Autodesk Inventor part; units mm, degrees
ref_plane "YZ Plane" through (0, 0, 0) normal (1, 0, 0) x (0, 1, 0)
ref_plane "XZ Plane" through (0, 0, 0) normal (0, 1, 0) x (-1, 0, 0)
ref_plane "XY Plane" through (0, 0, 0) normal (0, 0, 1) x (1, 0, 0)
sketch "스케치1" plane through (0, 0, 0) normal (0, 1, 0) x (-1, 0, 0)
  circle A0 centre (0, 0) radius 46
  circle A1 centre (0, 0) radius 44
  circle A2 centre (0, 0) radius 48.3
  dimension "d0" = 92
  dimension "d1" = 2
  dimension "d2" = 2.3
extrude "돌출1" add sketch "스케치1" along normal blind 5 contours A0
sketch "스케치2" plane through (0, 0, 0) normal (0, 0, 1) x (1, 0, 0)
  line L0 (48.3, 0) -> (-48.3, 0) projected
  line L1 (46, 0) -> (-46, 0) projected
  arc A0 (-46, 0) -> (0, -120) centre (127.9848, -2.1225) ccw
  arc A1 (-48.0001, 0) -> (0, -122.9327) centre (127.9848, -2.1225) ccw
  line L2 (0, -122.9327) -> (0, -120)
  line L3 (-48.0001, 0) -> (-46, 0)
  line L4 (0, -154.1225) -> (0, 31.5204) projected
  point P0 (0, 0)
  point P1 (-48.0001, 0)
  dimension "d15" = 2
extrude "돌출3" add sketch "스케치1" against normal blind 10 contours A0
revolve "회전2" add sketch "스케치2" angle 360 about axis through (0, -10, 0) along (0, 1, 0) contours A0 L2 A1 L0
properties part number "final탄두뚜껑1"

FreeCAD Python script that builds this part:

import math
import FreeCAD as App
import Part
import Sketcher
Q = App.Units.Quantity

doc = App.newDocument("Part")
body = doc.addObject("PartDesign::Body", "Body")

sketch1 = body.newObject("Sketcher::SketchObject", "Sketch")
sketch1.AttachmentSupport = (doc.getObject("XZ_Plane"), [""])
sketch1.MapMode = "FlatFace"
sketch1.addGeometry(Part.Circle(App.Vector(0, 0, 0), App.Vector(0, 0, 1), 46), False)
sketch1.addGeometry(Part.Circle(App.Vector(0, 0, 0), App.Vector(0, 0, 1), 44), False)
sketch1.addConstraint(Sketcher.Constraint("Coincident", 0, 3, -1, 1))
sketch1.addConstraint(Sketcher.Constraint("Coincident", 1, 3, -1, 1))
sketch1.addConstraint(Sketcher.Constraint("Diameter", 0, Q("92 mm")))
sketch1.addConstraint(Sketcher.Constraint("Diameter", 1, Q("88 mm")))
pad1 = body.newObject("PartDesign::Pad", "Pad")
pad1.Profile = sketch1
pad1.Length = 5
pad1.Reversed = True

sketch2 = body.newObject("Sketcher::SketchObject", "Sketch001")
sketch2.AttachmentSupport = (doc.getObject("XZ_Plane"), [""])
sketch2.MapMode = "FlatFace"
sketch2.addGeometry(Part.Circle(App.Vector(0, 0, 0), App.Vector(0, 0, 1), 46), False)
sketch2.addGeometry(Part.Circle(App.Vector(0, 0, 0), App.Vector(0, 0, 1), 44), False)
sketch2.addConstraint(Sketcher.Constraint("Coincident", 0, 3, -1, 1))
sketch2.addConstraint(Sketcher.Constraint("Coincident", 1, 3, -1, 1))
sketch2.addConstraint(Sketcher.Constraint("Diameter", 0, Q("92 mm")))
sketch2.addConstraint(Sketcher.Constraint("Diameter", 1, Q("88 mm")))
pad2 = body.newObject("PartDesign::Pad", "Pad001")
pad2.Profile = sketch2
pad2.Length = 10

sketch3 = body.newObject("Sketcher::SketchObject", "Sketch002")
sketch3.AttachmentSupport = (doc.getObject("XY_Plane"), [""])
sketch3.MapMode = "FlatFace"
sketch3.addGeometry(Part.ArcOfCircle(Part.Circle(App.Vector(128, -2.1, 0), App.Vector(0, 0, 1), 174), math.radians(179), math.radians(223)), False)
sketch3.addGeometry(Part.LineSegment(App.Vector(-46, 0, 0), App.Vector(-48, 0, 0)), False)
sketch3.addGeometry(Part.ArcOfCircle(Part.Circle(App.Vector(128, -2.1, 0), App.Vector(0, 0, 1), 176), math.radians(179), math.radians(223)), False)
sketch3.addGeometry(Part.LineSegment(App.Vector(0, -122.9, 0), App.Vector(0, -120, 0)), False)
sketch3.addConstraint(Sketcher.Constraint("Coincident", 0, 1, 1, 1))
sketch3.addConstraint(Sketcher.Constraint("Coincident", 1, 2, 2, 1))
sketch3.addConstraint(Sketcher.Constraint("Coincident", 2, 2, 3, 1))
sketch3.addConstraint(Sketcher.Constraint("Coincident", 3, 2, 0, 2))
sketch3.addConstraint(Sketcher.Constraint("Horizontal", 1))
sketch3.addConstraint(Sketcher.Constraint("Vertical", 3))
sketch3.addConstraint(Sketcher.Constraint("Coincident", 2, 3, 0, 3))
sketch3.addConstraint(Sketcher.Constraint("PointOnObject", 0, 1, -1))
sketch3.addConstraint(Sketcher.Constraint("PointOnObject", 2, 2, -2))
sketch3.addConstraint(Sketcher.Constraint("DistanceX", 1, 2, 1, 1, Q("2 mm")))
sketch3.addConstraint(Sketcher.Constraint("DistanceX", 0, 1, -1, 1, Q("46 mm")))
sketch3.addConstraint(Sketcher.Constraint("DistanceY", 3, 2, -1, 1, Q("120 mm")))
sketch3.addConstraint(Sketcher.Constraint("Radius", 0, Q("173.9977 mm")))
revolution = body.newObject("PartDesign::Revolution", "Revolution")
revolution.Profile = sketch3
revolution.ReferenceAxis = (sketch3, ["V_Axis"])
revolution.Angle = 360

doc.recompute()
